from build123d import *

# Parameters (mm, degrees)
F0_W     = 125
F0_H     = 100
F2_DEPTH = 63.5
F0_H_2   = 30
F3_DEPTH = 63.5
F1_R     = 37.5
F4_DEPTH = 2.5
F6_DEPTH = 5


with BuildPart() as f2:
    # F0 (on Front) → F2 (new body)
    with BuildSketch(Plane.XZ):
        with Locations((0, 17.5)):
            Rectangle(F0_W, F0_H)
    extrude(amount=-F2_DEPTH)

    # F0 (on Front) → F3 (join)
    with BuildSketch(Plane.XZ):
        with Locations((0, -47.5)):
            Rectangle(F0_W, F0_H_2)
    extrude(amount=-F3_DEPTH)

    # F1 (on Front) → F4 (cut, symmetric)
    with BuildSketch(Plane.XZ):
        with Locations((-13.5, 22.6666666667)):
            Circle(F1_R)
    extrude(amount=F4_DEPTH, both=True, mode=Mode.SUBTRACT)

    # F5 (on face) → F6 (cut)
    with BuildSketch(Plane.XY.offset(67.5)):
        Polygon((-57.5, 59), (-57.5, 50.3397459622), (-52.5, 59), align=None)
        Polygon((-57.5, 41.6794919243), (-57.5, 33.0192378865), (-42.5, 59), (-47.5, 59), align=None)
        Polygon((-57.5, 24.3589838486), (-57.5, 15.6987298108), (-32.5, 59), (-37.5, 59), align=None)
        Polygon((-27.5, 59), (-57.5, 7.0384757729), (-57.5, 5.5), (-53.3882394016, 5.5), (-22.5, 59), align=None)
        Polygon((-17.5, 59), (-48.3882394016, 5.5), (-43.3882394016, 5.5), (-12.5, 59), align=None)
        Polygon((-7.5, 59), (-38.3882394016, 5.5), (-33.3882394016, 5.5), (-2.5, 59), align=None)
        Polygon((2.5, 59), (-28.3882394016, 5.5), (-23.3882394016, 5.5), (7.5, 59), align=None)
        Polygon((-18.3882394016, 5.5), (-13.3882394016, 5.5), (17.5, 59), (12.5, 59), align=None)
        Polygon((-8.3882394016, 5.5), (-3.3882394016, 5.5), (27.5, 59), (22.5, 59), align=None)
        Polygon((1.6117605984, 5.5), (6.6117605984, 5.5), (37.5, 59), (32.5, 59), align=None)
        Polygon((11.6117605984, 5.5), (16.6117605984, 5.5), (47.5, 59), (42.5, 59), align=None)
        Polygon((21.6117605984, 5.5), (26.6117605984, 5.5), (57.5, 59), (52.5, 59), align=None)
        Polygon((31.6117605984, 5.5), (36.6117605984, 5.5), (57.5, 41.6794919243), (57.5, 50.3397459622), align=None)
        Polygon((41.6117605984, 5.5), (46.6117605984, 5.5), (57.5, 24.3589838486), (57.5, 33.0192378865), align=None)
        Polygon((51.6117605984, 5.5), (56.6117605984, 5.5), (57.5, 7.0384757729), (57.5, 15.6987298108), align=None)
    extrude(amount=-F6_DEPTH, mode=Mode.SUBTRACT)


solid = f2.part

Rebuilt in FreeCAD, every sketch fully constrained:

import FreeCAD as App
import Part
import Sketcher
from FreeCAD import Vector
Q = App.Units.Quantity


def add_polygon(sketch, points):
    """Adds a closed chain of lines whose ends are joined by coincident constraints."""
    first, n = sketch.GeometryCount, len(points)
    for a, b in zip(points, points[1:] + points[:1]):
        sketch.addGeometry(Part.LineSegment(App.Vector(*a, 0), App.Vector(*b, 0)), False)
    for i in range(n):
        sketch.addConstraint(Sketcher.Constraint("Coincident", first + i, 2, first + (i + 1) % n, 1))

doc = App.newDocument("Part")
params = doc.addObject("Spreadsheet::Sheet", "Params")
for row, (alias, value) in enumerate([
    ("sketch1_width", "125 mm"),
    ("sketch1_height", "100 mm"),
    ("pad1_length", "63.5 mm"),
    ("sketch2_width", "125 mm"),
    ("sketch2_height", "30 mm"),
    ("pad2_length", "63.5 mm"),
    ("sketch3_diameter", "75 mm"),
    ("pocket1_length", "5 mm"),
    ("sketch4_width", "5 mm"),
    ("pocket2_length", "5 mm"),
], start=1):
    params.set(f"A{row}", alias)
    params.set(f"B{row}", "=" + value)
    params.setAlias(f"B{row}", alias)

body = doc.addObject("PartDesign::Body", "Body")

sketch1 = body.newObject("Sketcher::SketchObject", "Sketch")
sketch1.AttachmentSupport = (doc.getObject("XZ_Plane"), [""])
sketch1.MapMode = "FlatFace"
add_polygon(sketch1, [(-62, 68), (-62, -32), (62, -32), (62, 68)])
sketch1.addConstraint([
    Sketcher.Constraint("Vertical", 0),
    Sketcher.Constraint("Horizontal", 1),
    Sketcher.Constraint("Vertical", 2),
    Sketcher.Constraint("Horizontal", 3),
    Sketcher.Constraint("DistanceX", 1, 1, 1, 2, 125.0),
    Sketcher.Constraint("DistanceY", 0, 2, 0, 1, 100.0),
    Sketcher.Constraint("DistanceX", 0, 2, -1, 1, 62.5),
    Sketcher.Constraint("DistanceY", 0, 2, -1, 1, 32.5),
])
sketch1.setExpression("Constraints[8]", "Params.sketch1_width")
sketch1.setExpression("Constraints[9]", "Params.sketch1_height")
pad1 = body.newObject("PartDesign::Pad", "Pad")
pad1.Profile = sketch1
pad1.setExpression("Length", "Params.pad1_length")
pad1.Reversed = True

sketch2 = body.newObject("Sketcher::SketchObject", "Sketch001")
sketch2.AttachmentSupport = (doc.getObject("XZ_Plane"), [""])
sketch2.MapMode = "FlatFace"
add_polygon(sketch2, [(-62, -32), (-62, -62), (62, -62), (62, -32)])
sketch2.addConstraint([
    Sketcher.Constraint("Vertical", 0),
    Sketcher.Constraint("Horizontal", 1),
    Sketcher.Constraint("Vertical", 2),
    Sketcher.Constraint("Horizontal", 3),
    Sketcher.Constraint("DistanceX", 1, 1, 1, 2, 125.0),
    Sketcher.Constraint("DistanceY", 0, 2, 0, 1, 30.0),
    Sketcher.Constraint("DistanceX", 0, 2, -1, 1, 62.5),
    Sketcher.Constraint("DistanceY", 0, 2, -1, 1, 62.5),
])
sketch2.setExpression("Constraints[8]", "Params.sketch2_width")
sketch2.setExpression("Constraints[9]", "Params.sketch2_height")
pad2 = body.newObject("PartDesign::Pad", "Pad001")
pad2.Profile = sketch2
pad2.setExpression("Length", "Params.pad2_length")
pad2.Reversed = True

sketch3 = body.newObject("Sketcher::SketchObject", "Sketch002")
sketch3.AttachmentSupport = (doc.getObject("XZ_Plane"), [""])
sketch3.MapMode = "FlatFace"
sketch3.addGeometry(Part.Circle(Vector(-14, 23, 0), Vector(0, 0, 1), 38), False)
sketch3.addConstraint([
    Sketcher.Constraint("Diameter", 0, 75.0),
    Sketcher.Constraint("DistanceX", 0, 3, -1, 1, 13.5),
    Sketcher.Constraint("DistanceY", -1, 1, 0, 3, 22.666667),
])
sketch3.setExpression("Constraints[0]", "Params.sketch3_diameter")
pocket1 = body.newObject("PartDesign::Pocket", "Pocket")
pocket1.Profile = sketch3
pocket1.setExpression("Length", "Params.pocket1_length")
pocket1.Midplane = True

sketch4 = body.newObject("Sketcher::SketchObject", "Sketch003")
sketch4.AttachmentSupport = (doc.getObject("XY_Plane"), [""])
sketch4.MapMode = "FlatFace"
sketch4.AttachmentOffset = App.Placement(Vector(0, 0, 67.5), App.Rotation())
add_polygon(sketch4, [(-57.5, 59), (-57.5, 50.3), (-52.5, 59)])
add_polygon(sketch4, [(-57.5, 41.7), (-57.5, 33), (-42.5, 59), (-47.5, 59)])
add_polygon(sketch4, [(-57.5, 24.4), (-57.5, 15.7), (-32.5, 59), (-37.5, 59)])
add_polygon(sketch4, [(-27.5, 59), (-57.5, 7), (-57.5, 5.5), (-53.4, 5.5), (-22.5, 59)])
add_polygon(sketch4, [(-17.5, 59), (-48.4, 5.5), (-43.4, 5.5), (-12.5, 59)])
add_polygon(sketch4, [(-7.5, 59), (-38.4, 5.5), (-33.4, 5.5), (-2.5, 59)])
add_polygon(sketch4, [(2.5, 59), (-28.4, 5.5), (-23.4, 5.5), (7.5, 59)])
add_polygon(sketch4, [(-18.4, 5.5), (-13.4, 5.5), (17.5, 59), (12.5, 59)])
add_polygon(sketch4, [(-8.4, 5.5), (-3.4, 5.5), (27.5, 59), (22.5, 59)])
add_polygon(sketch4, [(1.6, 5.5), (6.6, 5.5), (37.5, 59), (32.5, 59)])
add_polygon(sketch4, [(11.6, 5.5), (16.6, 5.5), (47.5, 59), (42.5, 59)])
add_polygon(sketch4, [(21.6, 5.5), (26.6, 5.5), (57.5, 59), (52.5, 59)])
add_polygon(sketch4, [(31.6, 5.5), (36.6, 5.5), (57.5, 41.7), (57.5, 50.3)])
add_polygon(sketch4, [(41.6, 5.5), (46.6, 5.5), (57.5, 24.4), (57.5, 33)])
add_polygon(sketch4, [(51.6, 5.5), (56.6, 5.5), (57.5, 7), (57.5, 15.7)])
sketch4.addConstraint([
    Sketcher.Constraint("Vertical", 0),
    Sketcher.Constraint("Horizontal", 2),
    Sketcher.Constraint("Vertical", 3),
    Sketcher.Constraint("Horizontal", 5),
    Sketcher.Constraint("Vertical", 7),
    Sketcher.Constraint("Horizontal", 9),
    Sketcher.Constraint("Vertical", 12),
    Sketcher.Constraint("Horizontal", 13),
    Sketcher.Constraint("Horizontal", 15),
    Sketcher.Constraint("Horizontal", 17),
    Sketcher.Constraint("Horizontal", 19),
    Sketcher.Constraint("Horizontal", 21),
    Sketcher.Constraint("Horizontal", 23),
    Sketcher.Constraint("Horizontal", 25),
    Sketcher.Constraint("Horizontal", 27),
    Sketcher.Constraint("Horizontal", 28),
    Sketcher.Constraint("Horizontal", 30),
    Sketcher.Constraint("Horizontal", 32),
    Sketcher.Constraint("Horizontal", 34),
    Sketcher.Constraint("Horizontal", 36),
    Sketcher.Constraint("Horizontal", 38),
    Sketcher.Constraint("Horizontal", 40),
    Sketcher.Constraint("Horizontal", 42),
    Sketcher.Constraint("Horizontal", 44),
    Sketcher.Constraint("Horizontal", 46),
    Sketcher.Constraint("Horizontal", 48),
    Sketcher.Constraint("Vertical", 50),
    Sketcher.Constraint("Horizontal", 52),
    Sketcher.Constraint("Vertical", 54),
    Sketcher.Constraint("Horizontal", 56),
    Sketcher.Constraint("Vertical", 58),
    Sketcher.Constraint("Symmetric", 23, 2, 26, 2, -2),
    Sketcher.Constraint("Symmetric", 19, 2, 29, 2, -2),
    Sketcher.Constraint("Symmetric", 15, 2, 33, 2, -2),
    Sketcher.Constraint("Symmetric", 9, 2, 37, 2, -2),
    Sketcher.Constraint("Symmetric", 5, 2, 41, 2, -2),
    Sketcher.Constraint("Symmetric", 2, 2, 45, 2, -2),
    Sketcher.Constraint("Symmetric", 6, 2, 49, 2, -2),
    Sketcher.Constraint("Symmetric", 0, 2, 50, 2, -2),
    Sketcher.Constraint("Symmetric", 10, 2, 53, 2, -2),
    Sketcher.Constraint("Symmetric", 3, 2, 54, 2, -2),
    Sketcher.Constraint("Symmetric", 11, 2, 57, 2, -2),
    Sketcher.Constraint("Symmetric", 7, 2, 58, 2, -2),
    Sketcher.Constraint("Parallel", 1, 4),
    Sketcher.Constraint("Parallel", 4, 6),
    Sketcher.Constraint("Parallel", 6, 8),
    Sketcher.Constraint("Parallel", 8, 10),
    Sketcher.Constraint("Parallel", 10, 11),
    Sketcher.Constraint("Parallel", 11, 14),
    Sketcher.Constraint("Parallel", 14, 16),
    Sketcher.Constraint("Parallel", 16, 18),
    Sketcher.Constraint("Parallel", 18, 20),
    Sketcher.Constraint("Parallel", 20, 22),
    Sketcher.Constraint("Parallel", 22, 24),
    Sketcher.Constraint("Parallel", 24, 26),
    Sketcher.Constraint("Parallel", 26, 29),
    Sketcher.Constraint("Parallel", 29, 31),
    Sketcher.Constraint("Parallel", 31, 33),
    Sketcher.Constraint("Parallel", 33, 35),
    Sketcher.Constraint("Parallel", 35, 37),
    Sketcher.Constraint("Parallel", 37, 39),
    Sketcher.Constraint("Parallel", 39, 41),
    Sketcher.Constraint("Parallel", 41, 43),
    Sketcher.Constraint("Parallel", 43, 45),
    Sketcher.Constraint("Parallel", 45, 47),
    Sketcher.Constraint("Parallel", 47, 49),
    Sketcher.Constraint("Parallel", 49, 51),
    Sketcher.Constraint("Parallel", 51, 53),
    Sketcher.Constraint("Parallel", 53, 55),
    Sketcher.Constraint("Parallel", 55, 57),
    Sketcher.Constraint("Parallel", 57, 59),
    Sketcher.Constraint("Horizontal", 2, 2, 4, 2),
    Sketcher.Constraint("Horizontal", 5, 2, 8, 2),
    Sketcher.Constraint("Horizontal", 9, 2, 14, 2),
    Sketcher.Constraint("Horizontal", 13, 2, 16, 2),
    Sketcher.Constraint("Horizontal", 15, 2, 18, 2),
    Sketcher.Constraint("Horizontal", 17, 2, 20, 2),
    Sketcher.Constraint("Horizontal", 19, 2, 22, 2),
    Sketcher.Constraint("Horizontal", 21, 2, 24, 2),
    Sketcher.Constraint("Horizontal", 25, 2, 28, 2),
    Sketcher.Constraint("Horizontal", 31, 2, 32, 2),
    Sketcher.Constraint("Horizontal", 35, 2, 36, 2),
    Sketcher.Constraint("Horizontal", 39, 2, 40, 2),
    Sketcher.Constraint("Horizontal", 43, 2, 44, 2),
    Sketcher.Constraint("Horizontal", 47, 2, 48, 2),
    Sketcher.Constraint("Horizontal", 51, 2, 52, 2),
    Sketcher.Constraint("Horizontal", 55, 2, 56, 2),
    Sketcher.Constraint("Equal", 2, 5),
    Sketcher.Constraint("Equal", 5, 9),
    Sketcher.Constraint("Equal", 9, 15),
    Sketcher.Constraint("Equal", 15, 17),
    Sketcher.Constraint("Equal", 19, 21),
    Sketcher.Constraint("Equal", 23, 25),
    Sketcher.Constraint("Equal", 27, 28),
    Sketcher.Constraint("Equal", 30, 32),
    Sketcher.Constraint("Equal", 34, 36),
    Sketcher.Constraint("Equal", 38, 40),
    Sketcher.Constraint("Equal", 42, 44),
    Sketcher.Constraint("Equal", 46, 48),
    Sketcher.Constraint("Equal", 48, 52),
    Sketcher.Constraint("Equal", 52, 56),
    Sketcher.Constraint("DistanceX", 2, 2, 2, 1, 5.0),
    Sketcher.Constraint("Angle", 1, Q("60 deg")),
    Sketcher.Constraint("DistanceY", -1, 1, 1, 2, 59.0),
    Sketcher.Constraint("DistanceX", 13, 2, 16, 2, 5.0),
    Sketcher.Constraint("DistanceX", 17, 2, 20, 2, 5.0),
    Sketcher.Constraint("DistanceX", 21, 2, 24, 2, 5.0),
    Sketcher.Constraint("DistanceY", -1, 1, 12, 2, 5.5),
])
sketch4.setExpression("Constraints[161]", "Params.sketch4_width")
pocket2 = body.newObject("PartDesign::Pocket", "Pocket001")
pocket2.Profile = sketch4
pocket2.setExpression("Length", "Params.pocket2_length")

doc.recompute()
